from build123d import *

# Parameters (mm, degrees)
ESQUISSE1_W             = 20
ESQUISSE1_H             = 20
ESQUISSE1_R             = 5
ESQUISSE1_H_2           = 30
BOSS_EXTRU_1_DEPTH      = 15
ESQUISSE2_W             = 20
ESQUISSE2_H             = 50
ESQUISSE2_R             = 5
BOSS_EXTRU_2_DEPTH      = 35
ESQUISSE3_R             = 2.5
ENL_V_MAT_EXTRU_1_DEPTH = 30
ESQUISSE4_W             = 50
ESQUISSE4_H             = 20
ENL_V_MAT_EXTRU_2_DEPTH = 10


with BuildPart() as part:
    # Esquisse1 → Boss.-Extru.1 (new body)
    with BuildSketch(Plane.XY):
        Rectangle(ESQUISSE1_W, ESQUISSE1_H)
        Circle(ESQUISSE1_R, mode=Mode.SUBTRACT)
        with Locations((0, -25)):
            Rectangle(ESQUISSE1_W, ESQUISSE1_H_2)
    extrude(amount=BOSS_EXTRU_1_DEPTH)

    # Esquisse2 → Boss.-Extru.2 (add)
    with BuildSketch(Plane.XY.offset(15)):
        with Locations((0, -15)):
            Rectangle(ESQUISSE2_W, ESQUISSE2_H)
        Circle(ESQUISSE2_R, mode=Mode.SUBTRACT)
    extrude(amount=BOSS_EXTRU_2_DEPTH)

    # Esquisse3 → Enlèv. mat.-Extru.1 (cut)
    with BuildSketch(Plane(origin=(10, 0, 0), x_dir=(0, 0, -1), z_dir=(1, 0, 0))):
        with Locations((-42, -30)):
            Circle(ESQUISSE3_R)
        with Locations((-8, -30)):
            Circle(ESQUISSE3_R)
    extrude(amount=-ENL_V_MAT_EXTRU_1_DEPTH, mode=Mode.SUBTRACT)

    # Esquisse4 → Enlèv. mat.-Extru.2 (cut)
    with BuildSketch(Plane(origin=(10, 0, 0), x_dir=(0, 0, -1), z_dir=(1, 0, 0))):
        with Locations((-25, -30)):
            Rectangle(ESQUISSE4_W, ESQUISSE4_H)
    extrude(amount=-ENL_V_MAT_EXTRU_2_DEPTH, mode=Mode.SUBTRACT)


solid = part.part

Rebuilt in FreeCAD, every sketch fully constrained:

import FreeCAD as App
import Part
import Sketcher
Q = App.Units.Quantity


def add_polygon(sketch, points):
    """Adds a closed chain of lines whose ends are joined by coincident constraints."""
    first, n = sketch.GeometryCount, len(points)
    for a, b in zip(points, points[1:] + points[:1]):
        sketch.addGeometry(Part.LineSegment(App.Vector(*a, 0), App.Vector(*b, 0)), False)
    for i in range(n):
        sketch.addConstraint(Sketcher.Constraint("Coincident", first + i, 2, first + (i + 1) % n, 1))

doc = App.newDocument("Part")
body = doc.addObject("PartDesign::Body", "Body")

# Sketch on XY plane
sketch1 = body.newObject("Sketcher::SketchObject", "Sketch")
sketch1.AttachmentSupport = (doc.getObject("XY_Plane"), [""])
sketch1.MapMode = "FlatFace"
add_polygon(sketch1, [(-10, 10), (-10, -40), (10, -40), (10, 10)])  # lines 0-3
sketch1.addGeometry(Part.Circle(App.Vector(0, 0, 0), App.Vector(0, 0, 1), 5), False)  # 4
sketch1.addConstraint([
    Sketcher.Constraint("Vertical", 0),
    Sketcher.Constraint("Horizontal", 1),
    Sketcher.Constraint("Vertical", 2),
    Sketcher.Constraint("Horizontal", 3),
    Sketcher.Constraint("Coincident", 4, 3, -1, 1),
    Sketcher.Constraint("Diameter", 4, Q("10 mm")),
    Sketcher.Constraint("DistanceX", 1, 1, 1, 2, Q("20 mm")),
    Sketcher.Constraint("DistanceY", 0, 2, 0, 1, Q("50 mm")),
    Sketcher.Constraint("DistanceX", 0, 2, -1, 1, Q("10 mm")),
    Sketcher.Constraint("DistanceY", 0, 2, -1, 1, Q("40 mm")),
])
pad1 = body.newObject("PartDesign::Pad", "Pad")
pad1.Profile = sketch1
pad1.Length = 15

# Sketch on XY plane
sketch2 = body.newObject("Sketcher::SketchObject", "Sketch001")
sketch2.AttachmentSupport = (doc.getObject("XY_Plane"), [""])
sketch2.MapMode = "FlatFace"
sketch2.AttachmentOffset = App.Placement(App.Vector(0, 0, 15), App.Rotation())
add_polygon(sketch2, [(-10, 10), (-10, -40), (10, -40), (10, 10)])  # lines 0-3
sketch2.addGeometry(Part.Circle(App.Vector(0, 0, 0), App.Vector(0, 0, 1), 5), False)  # 4
sketch2.addConstraint([
    Sketcher.Constraint("Vertical", 0),
    Sketcher.Constraint("Horizontal", 1),
    Sketcher.Constraint("Vertical", 2),
    Sketcher.Constraint("Horizontal", 3),
    Sketcher.Constraint("Coincident", 4, 3, -1, 1),
    Sketcher.Constraint("Diameter", 4, Q("10 mm")),
    Sketcher.Constraint("DistanceX", 1, 1, 1, 2, Q("20 mm")),
    Sketcher.Constraint("DistanceY", 0, 2, 0, 1, Q("50 mm")),
    Sketcher.Constraint("DistanceX", 0, 2, -1, 1, Q("10 mm")),
    Sketcher.Constraint("DistanceY", 0, 2, -1, 1, Q("40 mm")),
])
pad2 = body.newObject("PartDesign::Pad", "Pad001")
pad2.Profile = sketch2
pad2.Length = 35

# Sketch on YZ plane
sketch3 = body.newObject("Sketcher::SketchObject", "Sketch002")
sketch3.AttachmentSupport = (doc.getObject("YZ_Plane"), [""])
sketch3.MapMode = "FlatFace"
sketch3.AttachmentOffset = App.Placement(App.Vector(0, 0, 10), App.Rotation())
sketch3.addGeometry([
    Part.Circle(App.Vector(-30, 42, 0), App.Vector(0, 0, 1), 2.5),
    Part.Circle(App.Vector(-30, 8, 0), App.Vector(0, 0, 1), 2.5),
], False)
sketch3.addConstraint([
    Sketcher.Constraint("Equal", 0, 1),
    Sketcher.Constraint("Vertical", 0, 3, 1, 3),
    Sketcher.Constraint("Diameter", 0, Q("5 mm")),
    Sketcher.Constraint("DistanceX", 0, 3, -1, 1, Q("30 mm")),
    Sketcher.Constraint("DistanceY", -1, 1, 0, 3, Q("42 mm")),
    Sketcher.Constraint("DistanceY", -1, 1, 1, 3, Q("8 mm")),
])
pocket1 = body.newObject("PartDesign::Pocket", "Pocket")
pocket1.Profile = sketch3
pocket1.Length = 30

# Sketch on YZ plane
sketch4 = body.newObject("Sketcher::SketchObject", "Sketch003")
sketch4.AttachmentSupport = (doc.getObject("YZ_Plane"), [""])
sketch4.MapMode = "FlatFace"
sketch4.AttachmentOffset = App.Placement(App.Vector(0, 0, 10), App.Rotation())
add_polygon(sketch4, [(-20, 50), (-40, 50), (-40, 0), (-20, 0)])  # lines 0-3
sketch4.addConstraint([
    Sketcher.Constraint("Horizontal", 0),
    Sketcher.Constraint("Vertical", 1),
    Sketcher.Constraint("Horizontal", 2),
    Sketcher.Constraint("Vertical", 3),
    Sketcher.Constraint("PointOnObject", 1, 2, -1),
    Sketcher.Constraint("DistanceX", 0, 2, 0, 1, Q("20 mm")),
    Sketcher.Constraint("DistanceY", 1, 2, 1, 1, Q("50 mm")),
    Sketcher.Constraint("DistanceX", 0, 2, -1, 1, Q("40 mm")),
])
pocket2 = body.newObject("PartDesign::Pocket", "Pocket001")
pocket2.Profile = sketch4
pocket2.Length = 10

doc.recompute()
